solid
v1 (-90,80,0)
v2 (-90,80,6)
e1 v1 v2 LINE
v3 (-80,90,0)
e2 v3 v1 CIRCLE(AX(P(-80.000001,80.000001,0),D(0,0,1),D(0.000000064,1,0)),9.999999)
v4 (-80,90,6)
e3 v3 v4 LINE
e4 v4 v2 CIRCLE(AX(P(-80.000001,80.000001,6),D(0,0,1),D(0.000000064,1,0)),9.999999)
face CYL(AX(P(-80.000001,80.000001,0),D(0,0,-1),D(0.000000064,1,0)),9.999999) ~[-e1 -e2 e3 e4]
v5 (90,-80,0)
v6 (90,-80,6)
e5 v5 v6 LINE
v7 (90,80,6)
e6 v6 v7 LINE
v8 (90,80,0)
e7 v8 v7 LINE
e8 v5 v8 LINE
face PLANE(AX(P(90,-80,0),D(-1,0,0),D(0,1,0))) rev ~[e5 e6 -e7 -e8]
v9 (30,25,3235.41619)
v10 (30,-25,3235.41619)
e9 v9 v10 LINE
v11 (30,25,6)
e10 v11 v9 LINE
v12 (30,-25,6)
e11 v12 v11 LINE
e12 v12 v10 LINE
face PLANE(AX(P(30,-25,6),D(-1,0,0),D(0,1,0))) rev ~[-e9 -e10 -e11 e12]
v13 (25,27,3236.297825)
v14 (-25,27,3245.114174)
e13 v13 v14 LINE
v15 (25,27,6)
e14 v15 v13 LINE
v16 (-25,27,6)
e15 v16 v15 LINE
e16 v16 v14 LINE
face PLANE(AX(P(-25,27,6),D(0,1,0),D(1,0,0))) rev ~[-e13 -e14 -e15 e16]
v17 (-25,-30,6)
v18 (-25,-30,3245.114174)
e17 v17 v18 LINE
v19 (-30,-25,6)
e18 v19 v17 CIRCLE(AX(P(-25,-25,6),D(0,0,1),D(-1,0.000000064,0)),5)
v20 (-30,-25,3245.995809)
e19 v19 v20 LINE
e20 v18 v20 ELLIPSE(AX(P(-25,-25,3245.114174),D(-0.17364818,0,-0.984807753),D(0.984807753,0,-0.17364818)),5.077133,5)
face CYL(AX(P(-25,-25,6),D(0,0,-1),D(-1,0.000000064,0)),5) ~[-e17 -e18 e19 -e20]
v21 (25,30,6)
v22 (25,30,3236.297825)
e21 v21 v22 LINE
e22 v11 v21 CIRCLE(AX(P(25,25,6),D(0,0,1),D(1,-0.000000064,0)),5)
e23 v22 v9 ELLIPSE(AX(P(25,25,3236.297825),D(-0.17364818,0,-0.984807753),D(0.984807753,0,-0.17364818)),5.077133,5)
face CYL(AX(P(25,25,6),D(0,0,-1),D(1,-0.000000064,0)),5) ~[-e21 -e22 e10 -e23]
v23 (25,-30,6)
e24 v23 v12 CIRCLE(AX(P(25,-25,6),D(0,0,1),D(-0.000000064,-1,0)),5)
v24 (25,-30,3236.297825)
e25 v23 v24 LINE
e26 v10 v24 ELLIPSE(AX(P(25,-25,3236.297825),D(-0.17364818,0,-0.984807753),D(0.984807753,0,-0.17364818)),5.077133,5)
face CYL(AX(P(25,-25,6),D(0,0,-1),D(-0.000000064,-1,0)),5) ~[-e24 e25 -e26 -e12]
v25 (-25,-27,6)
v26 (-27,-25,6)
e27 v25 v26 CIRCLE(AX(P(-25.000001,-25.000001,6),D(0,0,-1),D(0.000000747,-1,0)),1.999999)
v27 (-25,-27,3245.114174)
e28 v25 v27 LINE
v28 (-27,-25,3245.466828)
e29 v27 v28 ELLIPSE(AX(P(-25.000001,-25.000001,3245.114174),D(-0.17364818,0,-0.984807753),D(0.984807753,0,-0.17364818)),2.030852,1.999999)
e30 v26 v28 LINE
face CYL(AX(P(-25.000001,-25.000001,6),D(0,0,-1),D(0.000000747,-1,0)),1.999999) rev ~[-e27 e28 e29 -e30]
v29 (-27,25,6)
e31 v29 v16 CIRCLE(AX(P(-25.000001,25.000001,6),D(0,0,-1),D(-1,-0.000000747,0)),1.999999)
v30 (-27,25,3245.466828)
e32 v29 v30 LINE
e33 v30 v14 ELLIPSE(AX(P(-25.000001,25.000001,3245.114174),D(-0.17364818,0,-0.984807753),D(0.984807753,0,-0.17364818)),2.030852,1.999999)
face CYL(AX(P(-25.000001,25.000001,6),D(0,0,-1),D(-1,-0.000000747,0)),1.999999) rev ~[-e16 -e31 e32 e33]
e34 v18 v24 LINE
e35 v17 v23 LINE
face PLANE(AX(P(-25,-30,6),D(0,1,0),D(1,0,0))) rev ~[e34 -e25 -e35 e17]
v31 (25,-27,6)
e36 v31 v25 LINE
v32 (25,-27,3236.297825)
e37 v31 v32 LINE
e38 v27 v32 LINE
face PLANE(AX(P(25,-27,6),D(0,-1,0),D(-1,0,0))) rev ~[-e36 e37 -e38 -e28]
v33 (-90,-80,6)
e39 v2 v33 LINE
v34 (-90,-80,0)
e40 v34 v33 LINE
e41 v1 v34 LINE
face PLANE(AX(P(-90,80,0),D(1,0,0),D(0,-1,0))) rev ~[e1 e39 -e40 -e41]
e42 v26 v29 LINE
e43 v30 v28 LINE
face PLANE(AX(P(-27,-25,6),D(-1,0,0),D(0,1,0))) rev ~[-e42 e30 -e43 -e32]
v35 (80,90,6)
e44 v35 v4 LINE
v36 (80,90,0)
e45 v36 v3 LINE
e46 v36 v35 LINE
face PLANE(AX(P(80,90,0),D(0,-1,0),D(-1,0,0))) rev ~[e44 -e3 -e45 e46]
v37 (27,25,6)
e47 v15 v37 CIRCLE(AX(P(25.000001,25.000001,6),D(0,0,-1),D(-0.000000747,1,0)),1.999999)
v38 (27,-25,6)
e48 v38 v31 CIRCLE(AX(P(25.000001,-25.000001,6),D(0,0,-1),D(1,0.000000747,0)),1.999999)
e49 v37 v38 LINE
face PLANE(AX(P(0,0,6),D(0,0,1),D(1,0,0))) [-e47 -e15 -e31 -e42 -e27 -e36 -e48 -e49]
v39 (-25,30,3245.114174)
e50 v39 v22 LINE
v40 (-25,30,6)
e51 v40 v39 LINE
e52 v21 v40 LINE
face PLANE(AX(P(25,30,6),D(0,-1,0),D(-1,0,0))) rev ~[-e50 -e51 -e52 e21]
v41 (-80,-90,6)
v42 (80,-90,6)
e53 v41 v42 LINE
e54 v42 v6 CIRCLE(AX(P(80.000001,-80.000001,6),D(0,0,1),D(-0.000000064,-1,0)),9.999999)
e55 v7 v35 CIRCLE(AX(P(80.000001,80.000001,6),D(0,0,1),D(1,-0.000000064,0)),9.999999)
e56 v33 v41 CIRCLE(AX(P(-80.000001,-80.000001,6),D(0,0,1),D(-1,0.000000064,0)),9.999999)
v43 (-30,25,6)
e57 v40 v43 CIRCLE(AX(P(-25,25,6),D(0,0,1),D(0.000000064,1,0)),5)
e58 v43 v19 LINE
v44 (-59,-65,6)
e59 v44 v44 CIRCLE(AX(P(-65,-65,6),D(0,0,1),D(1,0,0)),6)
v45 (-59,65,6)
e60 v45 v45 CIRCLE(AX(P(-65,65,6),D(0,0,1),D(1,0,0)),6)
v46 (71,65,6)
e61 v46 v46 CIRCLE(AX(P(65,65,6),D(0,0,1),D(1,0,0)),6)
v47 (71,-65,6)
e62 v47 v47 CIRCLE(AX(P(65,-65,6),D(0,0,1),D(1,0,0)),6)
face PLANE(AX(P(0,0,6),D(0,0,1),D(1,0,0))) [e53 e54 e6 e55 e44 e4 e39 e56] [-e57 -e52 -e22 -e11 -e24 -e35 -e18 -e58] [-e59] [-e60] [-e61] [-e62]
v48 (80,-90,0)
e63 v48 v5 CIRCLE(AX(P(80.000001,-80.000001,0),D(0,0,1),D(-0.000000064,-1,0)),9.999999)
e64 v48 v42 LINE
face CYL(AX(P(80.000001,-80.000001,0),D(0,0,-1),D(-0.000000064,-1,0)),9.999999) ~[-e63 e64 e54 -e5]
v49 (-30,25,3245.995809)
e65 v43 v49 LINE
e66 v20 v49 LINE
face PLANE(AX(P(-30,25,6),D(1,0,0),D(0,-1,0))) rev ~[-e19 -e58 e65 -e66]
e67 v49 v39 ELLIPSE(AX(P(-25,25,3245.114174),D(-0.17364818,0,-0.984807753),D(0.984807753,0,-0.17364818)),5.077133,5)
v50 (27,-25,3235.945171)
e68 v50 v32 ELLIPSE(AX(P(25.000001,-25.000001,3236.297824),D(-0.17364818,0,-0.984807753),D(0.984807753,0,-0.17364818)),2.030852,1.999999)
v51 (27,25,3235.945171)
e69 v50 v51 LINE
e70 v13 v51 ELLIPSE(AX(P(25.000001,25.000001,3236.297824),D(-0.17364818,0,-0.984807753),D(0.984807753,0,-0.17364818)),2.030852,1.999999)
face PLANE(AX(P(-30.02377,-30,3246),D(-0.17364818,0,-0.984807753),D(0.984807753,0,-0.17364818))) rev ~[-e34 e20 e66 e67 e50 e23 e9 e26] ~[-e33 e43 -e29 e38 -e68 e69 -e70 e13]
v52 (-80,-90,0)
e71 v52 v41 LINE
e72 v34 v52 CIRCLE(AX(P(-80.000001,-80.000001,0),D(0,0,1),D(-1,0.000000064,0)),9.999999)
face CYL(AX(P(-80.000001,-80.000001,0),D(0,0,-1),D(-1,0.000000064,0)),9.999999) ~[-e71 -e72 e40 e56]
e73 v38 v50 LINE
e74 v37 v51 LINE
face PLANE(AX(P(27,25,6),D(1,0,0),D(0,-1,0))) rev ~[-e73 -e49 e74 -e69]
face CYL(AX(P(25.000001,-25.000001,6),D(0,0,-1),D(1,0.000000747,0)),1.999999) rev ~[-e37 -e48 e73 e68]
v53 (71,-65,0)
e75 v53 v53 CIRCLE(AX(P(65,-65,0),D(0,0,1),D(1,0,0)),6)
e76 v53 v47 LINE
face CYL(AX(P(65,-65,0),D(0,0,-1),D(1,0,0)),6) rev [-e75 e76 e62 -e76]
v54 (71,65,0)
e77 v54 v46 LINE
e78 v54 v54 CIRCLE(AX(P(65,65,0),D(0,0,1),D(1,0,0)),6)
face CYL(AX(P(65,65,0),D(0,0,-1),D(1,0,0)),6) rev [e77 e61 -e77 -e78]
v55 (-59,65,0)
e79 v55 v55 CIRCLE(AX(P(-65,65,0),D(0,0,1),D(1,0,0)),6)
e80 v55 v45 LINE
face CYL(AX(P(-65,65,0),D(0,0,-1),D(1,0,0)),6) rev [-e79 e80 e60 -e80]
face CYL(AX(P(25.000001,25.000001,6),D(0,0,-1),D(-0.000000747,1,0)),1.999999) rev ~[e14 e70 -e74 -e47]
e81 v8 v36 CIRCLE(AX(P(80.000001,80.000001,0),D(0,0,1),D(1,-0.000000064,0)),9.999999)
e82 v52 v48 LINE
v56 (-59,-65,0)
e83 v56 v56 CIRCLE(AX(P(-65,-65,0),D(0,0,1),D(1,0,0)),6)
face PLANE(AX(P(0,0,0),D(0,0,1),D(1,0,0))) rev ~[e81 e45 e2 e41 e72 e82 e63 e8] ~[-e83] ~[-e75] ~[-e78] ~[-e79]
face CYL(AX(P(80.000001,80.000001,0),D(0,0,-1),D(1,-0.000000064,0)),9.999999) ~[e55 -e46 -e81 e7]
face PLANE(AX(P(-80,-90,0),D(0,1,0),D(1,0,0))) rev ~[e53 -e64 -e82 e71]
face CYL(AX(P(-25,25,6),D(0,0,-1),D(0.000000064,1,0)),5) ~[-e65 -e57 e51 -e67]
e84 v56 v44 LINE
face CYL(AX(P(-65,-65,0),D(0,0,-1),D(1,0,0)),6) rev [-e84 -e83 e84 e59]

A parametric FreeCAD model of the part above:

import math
import FreeCAD as App
import Part
import Sketcher

V = App.Vector
Q = App.Units.Quantity


def add_polygon(sketch, points):
    """Adds a closed chain of lines whose ends are joined by coincident constraints."""
    first, n = sketch.GeometryCount, len(points)
    for a, b in zip(points, points[1:] + points[:1]):
        sketch.addGeometry(Part.LineSegment(App.Vector(*a, 0), App.Vector(*b, 0)), False)
    for i in range(n):
        sketch.addConstraint(Sketcher.Constraint("Coincident", first + i, 2, first + (i + 1) % n, 1))

doc = App.newDocument("Part")
body = doc.addObject("PartDesign::Body", "Body")

# Sketch on XY plane
sketch1 = body.newObject("Sketcher::SketchObject", "Sketch")
sketch1.AttachmentSupport = (doc.getObject("XY_Plane"), [""])
sketch1.MapMode = "FlatFace"
sketch1.addGeometry([
    Part.ArcOfCircle(Part.Circle(V(80.000001, 80.000001, 0), V(0, 0, 1), 9.999999), math.radians(-0.000004), math.radians(90.000004)),  # 0
    Part.LineSegment(V(80, 90, 0), V(-80, 90, 0)),  # 1
    Part.ArcOfCircle(Part.Circle(V(-80.000001, 80.000001, 0), V(0, 0, 1), 9.999999), math.radians(89.999996), math.radians(180.000004)),  # 2
    Part.LineSegment(V(-90, 80, 0), V(-90, -80, 0)),  # 3
    Part.ArcOfCircle(Part.Circle(V(-80.000001, -80.000001, 0), V(0, 0, 1), 9.999999), math.radians(179.999996), math.radians(270.000004)),  # 4
    Part.LineSegment(V(-80, -90, 0), V(80, -90, 0)),  # 5
    Part.ArcOfCircle(Part.Circle(V(80.000001, -80.000001, 0), V(0, 0, 1), 9.999999), math.radians(-90.000004), math.radians(0.000004)),  # 6
    Part.LineSegment(V(90, -80, 0), V(90, 80, 0)),  # 7
    Part.Circle(V(-65, -65, 0), V(0, 0, 1), 6),  # 8
    Part.Circle(V(65, -65, 0), V(0, 0, 1), 6),  # 9
    Part.Circle(V(-65, 65, 0), V(0, 0, 1), 6),  # 10
    Part.Circle(V(65, 65, 0), V(0, 0, 1), 6),  # 11
], False)
sketch1.addConstraint([
    Sketcher.Constraint("Tangent", 0, 2, 1, 1),
    Sketcher.Constraint("Tangent", 1, 2, 2, 1),
    Sketcher.Constraint("Tangent", 2, 2, 3, 1),
    Sketcher.Constraint("Tangent", 3, 2, 4, 1),
    Sketcher.Constraint("Tangent", 4, 2, 5, 1),
    Sketcher.Constraint("Tangent", 5, 2, 6, 1),
    Sketcher.Constraint("Tangent", 6, 2, 7, 1),
    Sketcher.Constraint("Tangent", 7, 2, 0, 1),
    Sketcher.Constraint("Horizontal", 1),
    Sketcher.Constraint("Vertical", 3),
    Sketcher.Constraint("Horizontal", 5),
    Sketcher.Constraint("Vertical", 7),
    Sketcher.Constraint("Equal", 0, 2),
    Sketcher.Constraint("Equal", 2, 4),
    Sketcher.Constraint("Equal", 4, 6),
    Sketcher.Constraint("Equal", 8, 9),
    Sketcher.Constraint("Equal", 9, 10),
    Sketcher.Constraint("Equal", 10, 11),
    Sketcher.Constraint("Symmetric", 0, 3, 4, 3, -1, 1),
    Sketcher.Constraint("Symmetric", 9, 3, 10, 3, -1, 1),
    Sketcher.Constraint("Symmetric", 8, 3, 11, 3, -1, 1),
    Sketcher.Constraint("Symmetric", 8, 3, 9, 3, -2),
    Sketcher.Constraint("Equal", 5, 3),
    Sketcher.Constraint("Diameter", 8, Q("12 mm")),
    Sketcher.Constraint("Radius", 0, Q("9.999999 mm")),
    Sketcher.Constraint("DistanceX", 1, 2, 1, 1, Q("160 mm")),
    Sketcher.Constraint("DistanceX", 8, 3, -1, 1, Q("65 mm")),
    Sketcher.Constraint("DistanceY", 8, 3, -1, 1, Q("65 mm")),
])
pad1 = body.newObject("PartDesign::Pad", "Pad")
pad1.Profile = sketch1
pad1.Length = 6

# Sketch on XY plane
sketch2 = body.newObject("Sketcher::SketchObject", "Sketch001")
sketch2.AttachmentSupport = (doc.getObject("XY_Plane"), [""])
sketch2.MapMode = "FlatFace"
sketch2.AttachmentOffset = App.Placement(V(0, 0, 6), App.Rotation())
sketch2.addGeometry([
    Part.LineSegment(V(-25, -30, 0), V(25, -30, 0)),  # 0
    Part.ArcOfCircle(Part.Circle(V(25, -25, 0), V(0, 0, 1), 5), math.radians(-90.000004), math.radians(0.000004)),  # 1
    Part.LineSegment(V(30, -25, 0), V(30, 25, 0)),  # 2
    Part.ArcOfCircle(Part.Circle(V(25, 25, 0), V(0, 0, 1), 5), math.radians(-0.000004), math.radians(90.000004)),  # 3
    Part.LineSegment(V(25, 30, 0), V(-25, 30, 0)),  # 4
    Part.ArcOfCircle(Part.Circle(V(-25, 25, 0), V(0, 0, 1), 5), math.radians(89.999996), math.radians(180.000004)),  # 5
    Part.LineSegment(V(-30, 25, 0), V(-30, -25, 0)),  # 6
    Part.ArcOfCircle(Part.Circle(V(-25, -25, 0), V(0, 0, 1), 5), math.radians(179.999996), math.radians(270.000004)),  # 7
    Part.LineSegment(V(-25, 27, 0), V(25, 27, 0)),  # 8
    Part.ArcOfCircle(Part.Circle(V(25.000001, 25.000001, 0), V(0, 0, 1), 1.999999), math.radians(-0.000043), math.radians(90.000043)),  # 9
    Part.LineSegment(V(27, 25, 0), V(27, -25, 0)),  # 10
    Part.ArcOfCircle(Part.Circle(V(25.000001, -25.000001, 0), V(0, 0, 1), 1.999999), math.radians(-90.000043), math.radians(0.000043)),  # 11
    Part.LineSegment(V(25, -27, 0), V(-25, -27, 0)),  # 12
    Part.ArcOfCircle(Part.Circle(V(-25.000001, -25.000001, 0), V(0, 0, 1), 1.999999), math.radians(179.999957), math.radians(270.000043)),  # 13
    Part.LineSegment(V(-27, -25, 0), V(-27, 25, 0)),  # 14
    Part.ArcOfCircle(Part.Circle(V(-25.000001, 25.000001, 0), V(0, 0, 1), 1.999999), math.radians(89.999957), math.radians(180.000043)),  # 15
], False)
sketch2.addConstraint([
    Sketcher.Constraint("Tangent", 0, 2, 1, 1),
    Sketcher.Constraint("Tangent", 1, 2, 2, 1),
    Sketcher.Constraint("Tangent", 2, 2, 3, 1),
    Sketcher.Constraint("Tangent", 3, 2, 4, 1),
    Sketcher.Constraint("Tangent", 4, 2, 5, 1),
    Sketcher.Constraint("Tangent", 5, 2, 6, 1),
    Sketcher.Constraint("Tangent", 6, 2, 7, 1),
    Sketcher.Constraint("Tangent", 7, 2, 0, 1),
    Sketcher.Constraint("Tangent", 8, 2, 9, 2),
    Sketcher.Constraint("Tangent", 9, 1, 10, 1),
    Sketcher.Constraint("Tangent", 10, 2, 11, 2),
    Sketcher.Constraint("Tangent", 11, 1, 12, 1),
    Sketcher.Constraint("Tangent", 12, 2, 13, 2),
    Sketcher.Constraint("Tangent", 13, 1, 14, 1),
    Sketcher.Constraint("Tangent", 14, 2, 15, 2),
    Sketcher.Constraint("Tangent", 15, 1, 8, 1),
    Sketcher.Constraint("Horizontal", 0),
    Sketcher.Constraint("Vertical", 2),
    Sketcher.Constraint("Horizontal", 4),
    Sketcher.Constraint("Vertical", 6),
    Sketcher.Constraint("Horizontal", 8),
    Sketcher.Constraint("Vertical", 10),
    Sketcher.Constraint("Horizontal", 12),
    Sketcher.Constraint("Vertical", 14),
    Sketcher.Constraint("Coincident", 9, 3, 3, 3),
    Sketcher.Constraint("Coincident", 11, 3, 1, 3),
    Sketcher.Constraint("Coincident", 13, 3, 7, 3),
    Sketcher.Constraint("Equal", 1, 3),
    Sketcher.Constraint("Equal", 3, 5),
    Sketcher.Constraint("Equal", 5, 7),
    Sketcher.Constraint("Equal", 13, 15),
    Sketcher.Constraint("Symmetric", 1, 3, 5, 3, -1, 1),
    Sketcher.Constraint("Equal", 12, 2),
    Sketcher.Constraint("Radius", 1, Q("5 mm")),
    Sketcher.Constraint("Radius", 9, Q("1.999999 mm")),
    Sketcher.Constraint("DistanceX", 0, 1, 0, 2, Q("50 mm")),
])
pad2 = body.newObject("PartDesign::Pad", "Pad001")
pad2.Profile = sketch2
pad2.Length = 3240

# Sketch on XZ plane
sketch3 = body.newObject("Sketcher::SketchObject", "Sketch002")
sketch3.AttachmentSupport = (doc.getObject("XZ_Plane"), [""])
sketch3.MapMode = "FlatFace"
sketch3.AttachmentOffset = App.Placement(V(0, 0, 30), App.Rotation())
add_polygon(sketch3, [(31.369732, 3246), (-30.02377, 3246), (31.369732, 3235.174669)])  # lines 0-2
sketch3.addConstraint([
    Sketcher.Constraint("Horizontal", 0),
    Sketcher.Constraint("Vertical", 2),
    Sketcher.Constraint("Angle", 1, Q("-10 deg")),
    Sketcher.Constraint("DistanceY", -1, 1, 0, 2, Q("3246 mm")),
    Sketcher.Constraint("DistanceX", 0, 2, 0, 1, Q("61.393502 mm")),
    Sketcher.Constraint("DistanceX", 0, 2, -1, 1, Q("30.02377 mm")),
])
pocket1 = body.newObject("PartDesign::Pocket", "Pocket")
pocket1.Profile = sketch3
pocket1.Type = "ThroughAll"

doc.recompute()
